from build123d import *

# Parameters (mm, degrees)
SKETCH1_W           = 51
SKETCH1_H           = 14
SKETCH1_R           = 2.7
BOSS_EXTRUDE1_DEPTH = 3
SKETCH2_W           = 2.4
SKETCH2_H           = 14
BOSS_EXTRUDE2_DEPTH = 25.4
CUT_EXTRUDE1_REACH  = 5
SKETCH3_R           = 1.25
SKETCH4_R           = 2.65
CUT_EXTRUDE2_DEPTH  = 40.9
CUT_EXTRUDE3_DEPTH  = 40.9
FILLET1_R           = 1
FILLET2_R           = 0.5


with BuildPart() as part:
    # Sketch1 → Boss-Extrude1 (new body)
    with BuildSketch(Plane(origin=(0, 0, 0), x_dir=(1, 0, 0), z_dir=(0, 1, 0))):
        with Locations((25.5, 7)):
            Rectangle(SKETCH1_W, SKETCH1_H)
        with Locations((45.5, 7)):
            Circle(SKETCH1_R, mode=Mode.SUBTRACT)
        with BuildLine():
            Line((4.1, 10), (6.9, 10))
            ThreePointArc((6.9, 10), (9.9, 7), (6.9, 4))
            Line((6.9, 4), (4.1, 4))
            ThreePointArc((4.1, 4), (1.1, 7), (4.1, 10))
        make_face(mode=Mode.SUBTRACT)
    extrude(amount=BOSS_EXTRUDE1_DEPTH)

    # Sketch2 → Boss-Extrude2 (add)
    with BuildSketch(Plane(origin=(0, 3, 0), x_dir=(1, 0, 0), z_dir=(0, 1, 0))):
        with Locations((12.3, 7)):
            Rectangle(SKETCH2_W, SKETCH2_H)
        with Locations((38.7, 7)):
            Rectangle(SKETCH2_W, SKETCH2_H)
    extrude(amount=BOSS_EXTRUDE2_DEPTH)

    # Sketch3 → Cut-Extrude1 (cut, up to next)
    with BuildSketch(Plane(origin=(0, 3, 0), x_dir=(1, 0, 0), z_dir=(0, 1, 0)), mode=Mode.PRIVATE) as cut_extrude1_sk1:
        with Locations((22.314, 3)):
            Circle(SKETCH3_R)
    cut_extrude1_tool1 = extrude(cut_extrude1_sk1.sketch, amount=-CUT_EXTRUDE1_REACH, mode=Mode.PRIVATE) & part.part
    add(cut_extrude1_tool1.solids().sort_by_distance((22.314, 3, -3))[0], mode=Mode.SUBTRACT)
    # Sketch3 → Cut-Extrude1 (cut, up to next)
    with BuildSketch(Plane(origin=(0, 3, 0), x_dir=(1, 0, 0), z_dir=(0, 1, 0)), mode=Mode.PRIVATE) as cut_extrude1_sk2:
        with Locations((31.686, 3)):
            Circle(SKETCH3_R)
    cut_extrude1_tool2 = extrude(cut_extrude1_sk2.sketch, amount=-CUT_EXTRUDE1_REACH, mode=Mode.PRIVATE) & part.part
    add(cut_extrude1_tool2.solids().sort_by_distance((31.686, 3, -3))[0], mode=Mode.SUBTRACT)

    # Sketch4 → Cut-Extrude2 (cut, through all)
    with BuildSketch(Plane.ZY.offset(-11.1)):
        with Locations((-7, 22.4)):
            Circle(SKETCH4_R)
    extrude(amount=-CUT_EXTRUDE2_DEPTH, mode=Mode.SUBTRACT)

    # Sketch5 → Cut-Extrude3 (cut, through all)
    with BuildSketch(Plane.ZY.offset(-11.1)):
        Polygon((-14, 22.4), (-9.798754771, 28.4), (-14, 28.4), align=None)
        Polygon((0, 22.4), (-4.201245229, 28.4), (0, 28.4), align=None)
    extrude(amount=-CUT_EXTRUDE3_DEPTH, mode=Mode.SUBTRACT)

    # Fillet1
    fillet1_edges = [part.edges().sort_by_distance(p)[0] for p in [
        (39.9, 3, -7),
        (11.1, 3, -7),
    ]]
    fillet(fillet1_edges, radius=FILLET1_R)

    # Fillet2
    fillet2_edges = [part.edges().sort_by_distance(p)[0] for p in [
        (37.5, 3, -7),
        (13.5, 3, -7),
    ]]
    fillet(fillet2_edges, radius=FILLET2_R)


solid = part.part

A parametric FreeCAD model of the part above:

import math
import FreeCAD as App
import Part
import Sketcher
from FreeCAD import Vector
Q = App.Units.Quantity


def edges_at(feature, points):
    """Names of the edges that pass closest to the given points."""
    edges = feature.Shape.Edges
    near = lambda p: min(range(len(edges)), key=lambda i: edges[i].distToShape(Part.Vertex(*p))[0])
    return sorted({f"Edge{near(p) + 1}" for p in points})

doc = App.newDocument("Part")
body = doc.addObject("PartDesign::Body", "Body")

# Sketch on XZ plane
sketch1 = doc.addObject("Sketcher::SketchObject", "Sketch")
body.addObject(sketch1)
sketch1.AttachmentSupport = (doc.XZ_Plane, [""])
sketch1.MapMode = "FlatFace"
sketch1.addGeometry([
    Part.LineSegment(Vector(0, -14, 0), Vector(0, 0, 0)),  # 0
    Part.LineSegment(Vector(0, 0, 0), Vector(51, 0, 0)),  # 1
    Part.LineSegment(Vector(51, 0, 0), Vector(51, -14, 0)),  # 2
    Part.LineSegment(Vector(51, -14, 0), Vector(0, -14, 0)),  # 3
    Part.ArcOfCircle(Part.Circle(Vector(4.1, -7, 0), Vector(0, 0, 1), 3), math.radians(90), math.radians(270)),  # 4
    Part.LineSegment(Vector(4.1, -10, 0), Vector(6.9, -10, 0)),  # 5
    Part.ArcOfCircle(Part.Circle(Vector(6.9, -7, 0), Vector(0, 0, 1), 3), math.radians(-90), math.radians(90)),  # 6
    Part.LineSegment(Vector(6.9, -4, 0), Vector(4.1, -4, 0)),  # 7
    Part.Circle(Vector(45.5, -7, 0), Vector(0, 0, 1), 2.7),  # 8
], False)
sketch1.addConstraint([
    Sketcher.Constraint("Coincident", 0, 2, 1, 1),
    Sketcher.Constraint("Coincident", 1, 2, 2, 1),
    Sketcher.Constraint("Coincident", 2, 2, 3, 1),
    Sketcher.Constraint("Coincident", 3, 2, 0, 1),
    Sketcher.Constraint("Tangent", 4, 2, 5, 1),
    Sketcher.Constraint("Tangent", 5, 2, 6, 1),
    Sketcher.Constraint("Tangent", 6, 2, 7, 1),
    Sketcher.Constraint("Tangent", 7, 2, 4, 1),
    Sketcher.Constraint("Vertical", 0),
    Sketcher.Constraint("Horizontal", 1),
    Sketcher.Constraint("Vertical", 2),
    Sketcher.Constraint("Horizontal", 3),
    Sketcher.Constraint("Horizontal", 5),
    Sketcher.Constraint("Horizontal", 7),
    Sketcher.Constraint("Coincident", 0, 2, -1, 1),
    Sketcher.Constraint("Horizontal", 6, 3, 8, 3),
    Sketcher.Constraint("Radius", 4, 3.0),
    Sketcher.Constraint("Diameter", 8, 5.4),
    Sketcher.Constraint("DistanceX", 1, 1, 1, 2, 51.0),
    Sketcher.Constraint("DistanceY", 0, 1, 0, 2, 14.0),
    Sketcher.Constraint("DistanceX", 5, 1, 5, 2, 2.8),
    Sketcher.Constraint("DistanceY", 4, 3, -1, 1, 7.0),
    Sketcher.Constraint("DistanceX", -1, 1, 4, 3, 4.1),
    Sketcher.Constraint("DistanceX", -1, 1, 8, 3, 45.5),
])
pad1 = doc.addObject("PartDesign::Pad", "Pad")
body.addObject(pad1)
pad1.Profile = sketch1
pad1.Length = 3
pad1.Reversed = True

# Sketch on XZ plane
sketch2 = doc.addObject("Sketcher::SketchObject", "Sketch001")
body.addObject(sketch2)
sketch2.AttachmentSupport = (doc.XZ_Plane, [""])
sketch2.MapMode = "FlatFace"
sketch2.AttachmentOffset = App.Placement(Vector(0, 0, -3), App.Rotation())
sketch2.addGeometry([
    Part.LineSegment(Vector(11.1, -14, 0), Vector(11.1, 0, 0)),  # 0
    Part.LineSegment(Vector(11.1, 0, 0), Vector(13.5, 0, 0)),  # 1
    Part.LineSegment(Vector(13.5, 0, 0), Vector(13.5, -14, 0)),  # 2
    Part.LineSegment(Vector(13.5, -14, 0), Vector(11.1, -14, 0)),  # 3
    Part.LineSegment(Vector(37.5, -14, 0), Vector(37.5, 0, 0)),  # 4
    Part.LineSegment(Vector(37.5, 0, 0), Vector(39.9, 0, 0)),  # 5
    Part.LineSegment(Vector(39.9, 0, 0), Vector(39.9, -14, 0)),  # 6
    Part.LineSegment(Vector(39.9, -14, 0), Vector(37.5, -14, 0)),  # 7
], False)
sketch2.addConstraint([
    Sketcher.Constraint("Coincident", 0, 2, 1, 1),
    Sketcher.Constraint("Coincident", 1, 2, 2, 1),
    Sketcher.Constraint("Coincident", 2, 2, 3, 1),
    Sketcher.Constraint("Coincident", 3, 2, 0, 1),
    Sketcher.Constraint("Coincident", 4, 2, 5, 1),
    Sketcher.Constraint("Coincident", 5, 2, 6, 1),
    Sketcher.Constraint("Coincident", 6, 2, 7, 1),
    Sketcher.Constraint("Coincident", 7, 2, 4, 1),
    Sketcher.Constraint("Vertical", 0),
    Sketcher.Constraint("Horizontal", 1),
    Sketcher.Constraint("Vertical", 2),
    Sketcher.Constraint("Horizontal", 3),
    Sketcher.Constraint("Vertical", 4),
    Sketcher.Constraint("Horizontal", 5),
    Sketcher.Constraint("Vertical", 6),
    Sketcher.Constraint("Horizontal", 7),
    Sketcher.Constraint("PointOnObject", 0, 2, -1),
    Sketcher.Constraint("PointOnObject", 4, 2, -1),
    Sketcher.Constraint("Horizontal", 3, 2, 6, 2),
    Sketcher.Constraint("Equal", 3, 5),
    Sketcher.Constraint("DistanceY", 0, 1, 0, 2, 14.0),
    Sketcher.Constraint("DistanceX", 1, 1, 1, 2, 2.4),
    Sketcher.Constraint("DistanceX", 1, 2, 4, 2, 24.0),
    Sketcher.Constraint("DistanceX", -1, 1, 0, 2, 11.1),
])
pad2 = doc.addObject("PartDesign::Pad", "Pad001")
body.addObject(pad2)
pad2.Profile = sketch2
pad2.Length = 25.4
pad2.Reversed = True

# Sketch on XZ plane
sketch3 = doc.addObject("Sketcher::SketchObject", "Sketch002")
body.addObject(sketch3)
sketch3.AttachmentSupport = (doc.XZ_Plane, [""])
sketch3.MapMode = "FlatFace"
sketch3.AttachmentOffset = App.Placement(Vector(0, 0, -3), App.Rotation())
sketch3.addGeometry(Part.Circle(Vector(22.3, -3, 0), Vector(0, 0, 1), 1.2), False)
sketch3.addConstraint([
    Sketcher.Constraint("Diameter", 0, 2.5),
    Sketcher.Constraint("DistanceY", 0, 3, -1, 1, 3.0),
    Sketcher.Constraint("DistanceX", -1, 1, 0, 3, 22.314),
])
pocket1 = doc.addObject("PartDesign::Pocket", "Pocket")
body.addObject(pocket1)
pocket1.Profile = sketch3
pocket1.Type = "UpToFirst"
pocket1.Reversed = True

# Sketch on XZ plane
sketch4 = doc.addObject("Sketcher::SketchObject", "Sketch003")
body.addObject(sketch4)
sketch4.AttachmentSupport = (doc.XZ_Plane, [""])
sketch4.MapMode = "FlatFace"
sketch4.AttachmentOffset = App.Placement(Vector(0, 0, -3), App.Rotation())
sketch4.addGeometry(Part.Circle(Vector(31.7, -3, 0), Vector(0, 0, 1), 1.2), False)
sketch4.addConstraint([
    Sketcher.Constraint("Diameter", 0, 2.5),
    Sketcher.Constraint("DistanceY", 0, 3, -1, 1, 3.0),
    Sketcher.Constraint("DistanceX", -1, 1, 0, 3, 31.686),
])
pocket2 = doc.addObject("PartDesign::Pocket", "Pocket001")
body.addObject(pocket2)
pocket2.Profile = sketch4
pocket2.Type = "UpToFirst"
pocket2.Reversed = True

# Sketch on YZ plane
sketch5 = doc.addObject("Sketcher::SketchObject", "Sketch004")
body.addObject(sketch5)
sketch5.AttachmentSupport = (doc.YZ_Plane, [""])
sketch5.MapMode = "FlatFace"
sketch5.AttachmentOffset = App.Placement(Vector(0, 0, 11.1), App.Rotation())
sketch5.addGeometry(Part.Circle(Vector(22.4, -7, 0), Vector(0, 0, 1), 2.6), False)
sketch5.addConstraint([
    Sketcher.Constraint("Diameter", 0, 5.3),
    Sketcher.Constraint("DistanceY", 0, 3, -1, 1, 7.0),
    Sketcher.Constraint("DistanceX", -1, 1, 0, 3, 22.4),
])
pocket3 = doc.addObject("PartDesign::Pocket", "Pocket002")
body.addObject(pocket3)
pocket3.Profile = sketch5
pocket3.Type = "ThroughAll"
pocket3.Reversed = True

# Sketch on YZ plane
sketch6 = doc.addObject("Sketcher::SketchObject", "Sketch005")
body.addObject(sketch6)
sketch6.AttachmentSupport = (doc.YZ_Plane, [""])
sketch6.MapMode = "FlatFace"
sketch6.AttachmentOffset = App.Placement(Vector(0, 0, 11.1), App.Rotation())
sketch6.addGeometry([
    Part.LineSegment(Vector(22.4, -14, 0), Vector(28.4, -9.8, 0)),  # 0
    Part.LineSegment(Vector(28.4, -9.8, 0), Vector(28.4, -14, 0)),  # 1
    Part.LineSegment(Vector(28.4, -14, 0), Vector(22.4, -14, 0)),  # 2
    Part.LineSegment(Vector(28.4, -4.2, 0), Vector(22.4, 0, 0)),  # 3
    Part.LineSegment(Vector(22.4, 0, 0), Vector(28.4, 0, 0)),  # 4
    Part.LineSegment(Vector(28.4, 0, 0), Vector(28.4, -4.2, 0)),  # 5
], False)
sketch6.addConstraint([
    Sketcher.Constraint("Coincident", 0, 2, 1, 1),
    Sketcher.Constraint("Coincident", 1, 2, 2, 1),
    Sketcher.Constraint("Coincident", 2, 2, 0, 1),
    Sketcher.Constraint("Coincident", 3, 2, 4, 1),
    Sketcher.Constraint("Coincident", 4, 2, 5, 1),
    Sketcher.Constraint("Coincident", 5, 2, 3, 1),
    Sketcher.Constraint("Vertical", 1),
    Sketcher.Constraint("Horizontal", 2),
    Sketcher.Constraint("Horizontal", 4),
    Sketcher.Constraint("Vertical", 5),
    Sketcher.Constraint("PointOnObject", 3, 2, -1),
    Sketcher.Constraint("Vertical", 2, 2, 3, 2),
    Sketcher.Constraint("Vertical", 1, 2, 4, 2),
    Sketcher.Constraint("Equal", 1, 5),
    Sketcher.Constraint("DistanceX", 2, 2, 2, 1, 6.0),
    Sketcher.Constraint("Angle", 0, Q("35 deg")),
    Sketcher.Constraint("DistanceY", 1, 2, -1, 1, 14.0),
    Sketcher.Constraint("DistanceX", -1, 1, 0, 2, 28.4),
])
pocket4 = doc.addObject("PartDesign::Pocket", "Pocket003")
body.addObject(pocket4)
pocket4.Profile = sketch6
pocket4.Type = "ThroughAll"
pocket4.Reversed = True
doc.recompute()

fillet = doc.addObject("PartDesign::Fillet", "Fillet")
body.addObject(fillet)
fillet.Base = (pocket4, edges_at(pocket4, [(39.9, 3, -7), (11.1, 3, -7)]))
fillet.Radius = 1
doc.recompute()

fillet2 = doc.addObject("PartDesign::Fillet", "Fillet001")
body.addObject(fillet2)
fillet2.Base = (fillet, edges_at(fillet, [(37.5, 3, -7), (13.5, 3, -7)]))
fillet2.Radius = 0.5

doc.recompute()
